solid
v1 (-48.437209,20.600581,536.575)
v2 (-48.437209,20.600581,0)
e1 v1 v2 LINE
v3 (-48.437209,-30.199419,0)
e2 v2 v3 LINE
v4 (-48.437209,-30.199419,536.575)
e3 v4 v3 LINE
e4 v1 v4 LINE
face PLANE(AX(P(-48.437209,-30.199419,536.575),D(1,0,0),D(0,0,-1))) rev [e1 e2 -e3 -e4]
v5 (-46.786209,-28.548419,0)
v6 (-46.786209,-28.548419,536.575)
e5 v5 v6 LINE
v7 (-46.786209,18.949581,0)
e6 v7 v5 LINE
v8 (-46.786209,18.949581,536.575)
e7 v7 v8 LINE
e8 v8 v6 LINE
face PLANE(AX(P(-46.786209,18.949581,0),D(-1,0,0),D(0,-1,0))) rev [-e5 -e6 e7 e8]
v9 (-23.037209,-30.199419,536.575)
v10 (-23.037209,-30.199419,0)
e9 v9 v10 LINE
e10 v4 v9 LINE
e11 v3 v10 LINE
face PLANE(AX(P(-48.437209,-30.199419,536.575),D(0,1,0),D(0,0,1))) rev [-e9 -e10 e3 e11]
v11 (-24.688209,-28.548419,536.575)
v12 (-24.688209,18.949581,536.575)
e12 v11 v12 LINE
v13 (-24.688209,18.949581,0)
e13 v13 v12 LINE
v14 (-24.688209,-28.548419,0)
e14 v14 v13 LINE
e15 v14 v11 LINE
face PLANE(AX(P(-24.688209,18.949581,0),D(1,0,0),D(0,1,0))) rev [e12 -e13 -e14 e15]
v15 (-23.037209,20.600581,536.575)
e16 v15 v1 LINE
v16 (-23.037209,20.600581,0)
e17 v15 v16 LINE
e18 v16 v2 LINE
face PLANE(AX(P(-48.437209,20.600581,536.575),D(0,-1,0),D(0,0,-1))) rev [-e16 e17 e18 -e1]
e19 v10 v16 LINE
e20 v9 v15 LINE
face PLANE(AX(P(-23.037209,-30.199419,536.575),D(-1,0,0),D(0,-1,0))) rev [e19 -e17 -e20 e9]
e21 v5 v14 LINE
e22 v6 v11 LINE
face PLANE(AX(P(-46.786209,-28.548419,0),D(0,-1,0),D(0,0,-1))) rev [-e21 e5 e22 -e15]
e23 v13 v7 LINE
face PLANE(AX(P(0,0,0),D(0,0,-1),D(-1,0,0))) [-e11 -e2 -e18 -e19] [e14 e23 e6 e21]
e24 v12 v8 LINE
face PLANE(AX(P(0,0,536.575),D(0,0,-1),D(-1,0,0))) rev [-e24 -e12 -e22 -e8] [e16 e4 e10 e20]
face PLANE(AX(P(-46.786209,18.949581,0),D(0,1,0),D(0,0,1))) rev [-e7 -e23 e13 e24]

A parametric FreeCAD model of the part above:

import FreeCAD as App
import Part
import Sketcher

V = App.Vector
Q = App.Units.Quantity


def add_polygon(sketch, points):
    """Adds a closed chain of lines whose ends are joined by coincident constraints."""
    first, n = sketch.GeometryCount, len(points)
    for a, b in zip(points, points[1:] + points[:1]):
        sketch.addGeometry(Part.LineSegment(App.Vector(*a, 0), App.Vector(*b, 0)), False)
    for i in range(n):
        sketch.addConstraint(Sketcher.Constraint("Coincident", first + i, 2, first + (i + 1) % n, 1))

doc = App.newDocument("Part")
body = doc.addObject("PartDesign::Body", "Body")

# Sketch on XY plane
sketch1 = body.newObject("Sketcher::SketchObject", "Sketch")
sketch1.AttachmentSupport = (doc.getObject("XY_Plane"), [""])
sketch1.MapMode = "FlatFace"
add_polygon(sketch1, [(-48, 21), (-48, -30), (-23, -30), (-23, 21)])  # lines 0-3
sketch1.addConstraint([
    Sketcher.Constraint("Vertical", 0),
    Sketcher.Constraint("Horizontal", 1),
    Sketcher.Constraint("Vertical", 2),
    Sketcher.Constraint("Horizontal", 3),
    Sketcher.Constraint("DistanceX", 1, 1, 1, 2, Q("1 in")),
    Sketcher.Constraint("DistanceY", 0, 2, 0, 1, Q("2 in")),
    Sketcher.Constraint("DistanceX", 0, 2, -1, 1, Q("48.437209 mm")),
    Sketcher.Constraint("DistanceY", 0, 2, -1, 1, Q("30.199419 mm")),
])
pad1 = body.newObject("PartDesign::Pad", "Pad")
pad1.Profile = sketch1
pad1.Length = Q("21.125 in")

# Sketch on XY plane
sketch2 = body.newObject("Sketcher::SketchObject", "Sketch001")
sketch2.AttachmentSupport = (doc.getObject("XY_Plane"), [""])
sketch2.MapMode = "FlatFace"
sketch2.AttachmentOffset = App.Placement(V(0, 0, 21.125 * 25.4), App.Rotation())
add_polygon(sketch2, [(-47, 19), (-47, -29), (-25, -29), (-25, 19)])  # lines 0-3
sketch2.addConstraint([
    Sketcher.Constraint("Vertical", 0),
    Sketcher.Constraint("Horizontal", 1),
    Sketcher.Constraint("Vertical", 2),
    Sketcher.Constraint("Horizontal", 3),
    Sketcher.Constraint("DistanceX", 1, 1, 1, 2, Q("0.87 in")),
    Sketcher.Constraint("DistanceY", 0, 2, 0, 1, Q("1.87 in")),
    Sketcher.Constraint("DistanceX", 0, 2, -1, 1, Q("46.786209 mm")),
    Sketcher.Constraint("DistanceY", 0, 2, -1, 1, Q("28.548419 mm")),
])
pocket1 = body.newObject("PartDesign::Pocket", "Pocket")
pocket1.Profile = sketch2
pocket1.Type = "ThroughAll"

doc.recompute()
